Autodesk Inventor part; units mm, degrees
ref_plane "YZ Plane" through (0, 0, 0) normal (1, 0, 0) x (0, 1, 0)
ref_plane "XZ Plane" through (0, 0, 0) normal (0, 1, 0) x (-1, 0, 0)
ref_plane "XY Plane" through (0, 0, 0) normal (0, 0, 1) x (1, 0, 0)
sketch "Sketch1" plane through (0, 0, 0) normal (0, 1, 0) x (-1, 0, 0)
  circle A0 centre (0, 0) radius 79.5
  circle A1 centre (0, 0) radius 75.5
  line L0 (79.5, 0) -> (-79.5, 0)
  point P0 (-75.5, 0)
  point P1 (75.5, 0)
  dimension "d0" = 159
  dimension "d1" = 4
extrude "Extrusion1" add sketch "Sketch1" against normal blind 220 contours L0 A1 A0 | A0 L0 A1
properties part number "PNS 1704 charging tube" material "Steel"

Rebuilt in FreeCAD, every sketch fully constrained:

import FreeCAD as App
import Part
import Sketcher

V = App.Vector

doc = App.newDocument("Part")
body = doc.addObject("PartDesign::Body", "Body")

sketch1 = body.newObject("Sketcher::SketchObject", "Sketch")
sketch1.AttachmentSupport = (doc.getObject("XZ_Plane"), [""])
sketch1.MapMode = "FlatFace"
sketch1.addGeometry(Part.Circle(V(0, 0, 0), V(0, 0, 1), 80), False)
sketch1.addGeometry(Part.Circle(V(0, 0, 0), V(0, 0, 1), 76), False)
sketch1.addConstraint(Sketcher.Constraint("Coincident", 0, 3, -1, 1))
sketch1.addConstraint(Sketcher.Constraint("Coincident", 1, 3, -1, 1))
sketch1.addConstraint(Sketcher.Constraint("Diameter", 0, 159.0))
sketch1.addConstraint(Sketcher.Constraint("Diameter", 1, 151.0))
pad1 = body.newObject("PartDesign::Pad", "Pad")
pad1.Profile = sketch1
pad1.Length = 220

doc.recompute()
